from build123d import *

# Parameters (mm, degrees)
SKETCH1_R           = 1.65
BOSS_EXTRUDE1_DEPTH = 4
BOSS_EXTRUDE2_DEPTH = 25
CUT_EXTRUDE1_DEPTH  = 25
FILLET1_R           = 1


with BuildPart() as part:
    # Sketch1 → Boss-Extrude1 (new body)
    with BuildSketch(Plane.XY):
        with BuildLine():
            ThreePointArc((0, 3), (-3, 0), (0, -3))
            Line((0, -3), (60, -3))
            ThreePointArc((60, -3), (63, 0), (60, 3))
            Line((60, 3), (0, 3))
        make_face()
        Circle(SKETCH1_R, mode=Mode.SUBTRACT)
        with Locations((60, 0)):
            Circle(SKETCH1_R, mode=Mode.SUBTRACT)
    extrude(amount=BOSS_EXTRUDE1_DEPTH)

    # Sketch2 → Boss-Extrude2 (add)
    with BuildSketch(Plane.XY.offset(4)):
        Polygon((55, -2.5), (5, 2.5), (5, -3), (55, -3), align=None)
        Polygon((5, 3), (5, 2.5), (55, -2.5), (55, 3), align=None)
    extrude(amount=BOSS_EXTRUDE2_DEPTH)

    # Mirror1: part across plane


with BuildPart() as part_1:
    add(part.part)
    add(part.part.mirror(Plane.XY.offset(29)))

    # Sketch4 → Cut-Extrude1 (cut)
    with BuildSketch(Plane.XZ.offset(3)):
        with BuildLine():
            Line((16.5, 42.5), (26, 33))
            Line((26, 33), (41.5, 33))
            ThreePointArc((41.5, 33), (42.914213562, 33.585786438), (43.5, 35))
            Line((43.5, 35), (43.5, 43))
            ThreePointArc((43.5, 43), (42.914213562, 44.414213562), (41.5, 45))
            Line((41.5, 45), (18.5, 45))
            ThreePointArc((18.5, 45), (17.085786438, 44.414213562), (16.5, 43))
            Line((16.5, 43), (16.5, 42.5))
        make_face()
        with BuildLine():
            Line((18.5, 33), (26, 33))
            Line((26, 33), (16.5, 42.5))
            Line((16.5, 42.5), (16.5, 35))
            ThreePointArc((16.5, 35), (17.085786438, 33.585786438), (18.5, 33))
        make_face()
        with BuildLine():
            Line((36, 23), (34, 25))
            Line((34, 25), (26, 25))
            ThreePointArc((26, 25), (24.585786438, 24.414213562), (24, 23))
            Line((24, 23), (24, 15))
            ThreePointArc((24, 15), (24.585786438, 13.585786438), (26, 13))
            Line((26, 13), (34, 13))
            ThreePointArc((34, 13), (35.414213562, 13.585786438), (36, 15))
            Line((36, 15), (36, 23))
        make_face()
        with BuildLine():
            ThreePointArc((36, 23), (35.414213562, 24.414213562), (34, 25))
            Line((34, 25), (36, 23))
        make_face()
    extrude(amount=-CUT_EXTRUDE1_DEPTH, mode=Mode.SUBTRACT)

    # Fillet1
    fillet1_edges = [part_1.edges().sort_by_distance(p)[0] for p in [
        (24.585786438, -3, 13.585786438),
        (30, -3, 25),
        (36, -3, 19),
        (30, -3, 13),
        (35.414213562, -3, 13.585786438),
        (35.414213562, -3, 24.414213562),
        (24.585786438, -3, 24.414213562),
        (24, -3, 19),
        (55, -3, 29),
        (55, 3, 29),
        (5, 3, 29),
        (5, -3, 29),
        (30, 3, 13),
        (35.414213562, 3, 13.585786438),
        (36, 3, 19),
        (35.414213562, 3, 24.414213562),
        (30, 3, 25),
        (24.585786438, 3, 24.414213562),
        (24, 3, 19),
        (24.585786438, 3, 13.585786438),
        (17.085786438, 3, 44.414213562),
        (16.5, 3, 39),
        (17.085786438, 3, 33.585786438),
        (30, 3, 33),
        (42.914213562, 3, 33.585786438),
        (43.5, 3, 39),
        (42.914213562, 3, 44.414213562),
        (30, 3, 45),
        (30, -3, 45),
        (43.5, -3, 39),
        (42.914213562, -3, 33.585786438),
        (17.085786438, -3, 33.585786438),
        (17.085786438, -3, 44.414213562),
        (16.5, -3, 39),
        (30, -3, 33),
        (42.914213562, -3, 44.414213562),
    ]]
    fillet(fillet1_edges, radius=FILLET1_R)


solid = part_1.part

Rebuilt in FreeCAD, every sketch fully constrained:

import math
import FreeCAD as App
import Part
import Sketcher
Q = App.Units.Quantity


def edges_at(feature, points):
    """Names of the edges that pass closest to the given points."""
    edges = feature.Shape.Edges
    near = lambda p: min(range(len(edges)), key=lambda i: edges[i].distToShape(Part.Vertex(*p))[0])
    return sorted({f"Edge{near(p) + 1}" for p in points})


def add_polygon(sketch, points):
    """Adds a closed chain of lines whose ends are joined by coincident constraints."""
    first, n = sketch.GeometryCount, len(points)
    for a, b in zip(points, points[1:] + points[:1]):
        sketch.addGeometry(Part.LineSegment(App.Vector(*a, 0), App.Vector(*b, 0)), False)
    for i in range(n):
        sketch.addConstraint(Sketcher.Constraint("Coincident", first + i, 2, first + (i + 1) % n, 1))

doc = App.newDocument("Part")
body = doc.addObject("PartDesign::Body", "Body")

sketch1 = body.newObject("Sketcher::SketchObject", "Sketch")
sketch1.AttachmentSupport = (doc.getObject("XY_Plane"), [""])
sketch1.MapMode = "FlatFace"
sketch1.addGeometry([
    Part.ArcOfCircle(Part.Circle(App.Vector(0, 0, 0), App.Vector(0, 0, 1), 3), math.radians(90), math.radians(270)),
    Part.LineSegment(App.Vector(0, -3, 0), App.Vector(60, -3, 0)),
    Part.ArcOfCircle(Part.Circle(App.Vector(60, 0, 0), App.Vector(0, 0, 1), 3), math.radians(-90), math.radians(90)),
    Part.LineSegment(App.Vector(60, 3, 0), App.Vector(0, 3, 0)),
    Part.Circle(App.Vector(0, 0, 0), App.Vector(0, 0, 1), 1.65),
    Part.Circle(App.Vector(60, 0, 0), App.Vector(0, 0, 1), 1.65),
], False)
sketch1.addConstraint([
    Sketcher.Constraint("Tangent", 0, 2, 1, 1),
    Sketcher.Constraint("Tangent", 1, 2, 2, 1),
    Sketcher.Constraint("Tangent", 2, 2, 3, 1),
    Sketcher.Constraint("Tangent", 3, 2, 0, 1),
    Sketcher.Constraint("Horizontal", 1),
    Sketcher.Constraint("Horizontal", 3),
    Sketcher.Constraint("Coincident", 0, 3, -1, 1),
    Sketcher.Constraint("Coincident", 4, 3, -1, 1),
    Sketcher.Constraint("Coincident", 5, 3, 2, 3),
    Sketcher.Constraint("Equal", 4, 5),
    Sketcher.Constraint("Radius", 0, Q("3 mm")),
    Sketcher.Constraint("Diameter", 4, Q("3.3 mm")),
    Sketcher.Constraint("DistanceX", 1, 1, 1, 2, Q("60 mm")),
])
pad1 = body.newObject("PartDesign::Pad", "Pad")
pad1.Profile = sketch1
pad1.Length = 4

sketch2 = body.newObject("Sketcher::SketchObject", "Sketch001")
sketch2.AttachmentSupport = (doc.getObject("XY_Plane"), [""])
sketch2.MapMode = "FlatFace"
sketch2.AttachmentOffset = App.Placement(App.Vector(0, 0, 4), App.Rotation())
add_polygon(sketch2, [(5, -3), (55, -3), (55, 3), (5, 3)])
sketch2.addConstraint([
    Sketcher.Constraint("Horizontal", 0),
    Sketcher.Constraint("Vertical", 1),
    Sketcher.Constraint("Horizontal", 2),
    Sketcher.Constraint("Vertical", 3),
    Sketcher.Constraint("DistanceX", 0, 1, 0, 2, Q("50 mm")),
    Sketcher.Constraint("DistanceY", 1, 1, 1, 2, Q("6 mm")),
    Sketcher.Constraint("DistanceX", -1, 1, 0, 2, Q("55 mm")),
    Sketcher.Constraint("DistanceY", 0, 2, -1, 1, Q("3 mm")),
])
pad2 = body.newObject("PartDesign::Pad", "Pad001")
pad2.Profile = sketch2
pad2.Length = 25
body2 = doc.addObject("PartDesign::Body", "Body001")
doc.recompute()

body2.BaseFeature = body
doc.recompute()

mirroring = doc.addObject("Part::Mirroring", "Mirroring")
mirroring.Source = body
mirroring.Base = App.Vector(0, 0, 29)
mirroring.Normal = App.Vector(0, 0, 1)
body3 = doc.addObject("PartDesign::Body", "Body002")
body3.BaseFeature = mirroring
boolean = body2.newObject("PartDesign::Boolean", "Boolean")
boolean.Type = "Fuse"
boolean.addObjects([body3])
doc.recompute()

sketch3 = body2.newObject("Sketcher::SketchObject", "Sketch002")
sketch3.AttachmentSupport = (doc.getObject("XZ_Plane001"), [""])
sketch3.MapMode = "FlatFace"
sketch3.AttachmentOffset = App.Placement(App.Vector(0, 0, 3), App.Rotation())
sketch3.addGeometry([
    Part.ArcOfCircle(Part.Circle(App.Vector(41.5, 35, 0), App.Vector(0, 0, 1), 2), math.radians(-90), math.radians(0)),
    Part.LineSegment(App.Vector(43.5, 35, 0), App.Vector(43.5, 43, 0)),
    Part.ArcOfCircle(Part.Circle(App.Vector(41.5, 43, 0), App.Vector(0, 0, 1), 2), math.radians(0), math.radians(90)),
    Part.LineSegment(App.Vector(41.5, 45, 0), App.Vector(18.5, 45, 0)),
    Part.ArcOfCircle(Part.Circle(App.Vector(18.5, 43, 0), App.Vector(0, 0, 1), 2), math.radians(90), math.radians(180)),
    Part.LineSegment(App.Vector(16.5, 43, 0), App.Vector(16.5, 35, 0)),
    Part.ArcOfCircle(Part.Circle(App.Vector(18.5, 35, 0), App.Vector(0, 0, 1), 2), math.radians(-180), math.radians(-90)),
    Part.LineSegment(App.Vector(18.5, 33, 0), App.Vector(41.5, 33, 0)),
    Part.LineSegment(App.Vector(34, 25, 0), App.Vector(26, 25, 0)),
    Part.ArcOfCircle(Part.Circle(App.Vector(26, 23, 0), App.Vector(0, 0, 1), 2), math.radians(90), math.radians(180)),
    Part.LineSegment(App.Vector(24, 23, 0), App.Vector(24, 15, 0)),
    Part.ArcOfCircle(Part.Circle(App.Vector(26, 15, 0), App.Vector(0, 0, 1), 2), math.radians(-180), math.radians(-90)),
    Part.LineSegment(App.Vector(26, 13, 0), App.Vector(34, 13, 0)),
    Part.ArcOfCircle(Part.Circle(App.Vector(34, 15, 0), App.Vector(0, 0, 1), 2), math.radians(-90), math.radians(0)),
    Part.LineSegment(App.Vector(36, 15, 0), App.Vector(36, 23, 0)),
    Part.ArcOfCircle(Part.Circle(App.Vector(34, 23, 0), App.Vector(0, 0, 1), 2), math.radians(0), math.radians(90)),
], False)
sketch3.addConstraint([
    Sketcher.Constraint("Tangent", 0, 2, 1, 1),
    Sketcher.Constraint("Tangent", 1, 2, 2, 1),
    Sketcher.Constraint("Tangent", 2, 2, 3, 1),
    Sketcher.Constraint("Tangent", 3, 2, 4, 1),
    Sketcher.Constraint("Tangent", 4, 2, 5, 1),
    Sketcher.Constraint("Tangent", 5, 2, 6, 1),
    Sketcher.Constraint("Tangent", 6, 2, 7, 1),
    Sketcher.Constraint("Tangent", 7, 2, 0, 1),
    Sketcher.Constraint("Tangent", 8, 2, 9, 1),
    Sketcher.Constraint("Tangent", 9, 2, 10, 1),
    Sketcher.Constraint("Tangent", 10, 2, 11, 1),
    Sketcher.Constraint("Tangent", 11, 2, 12, 1),
    Sketcher.Constraint("Tangent", 12, 2, 13, 1),
    Sketcher.Constraint("Tangent", 13, 2, 14, 1),
    Sketcher.Constraint("Tangent", 14, 2, 15, 1),
    Sketcher.Constraint("Tangent", 15, 2, 8, 1),
    Sketcher.Constraint("Vertical", 1),
    Sketcher.Constraint("Horizontal", 3),
    Sketcher.Constraint("Vertical", 5),
    Sketcher.Constraint("Horizontal", 7),
    Sketcher.Constraint("Horizontal", 8),
    Sketcher.Constraint("Vertical", 10),
    Sketcher.Constraint("Horizontal", 12),
    Sketcher.Constraint("Vertical", 14),
    Sketcher.Constraint("Equal", 0, 2),
    Sketcher.Constraint("Equal", 2, 4),
    Sketcher.Constraint("Equal", 4, 6),
    Sketcher.Constraint("Equal", 6, 9),
    Sketcher.Constraint("Equal", 9, 11),
    Sketcher.Constraint("Equal", 11, 13),
    Sketcher.Constraint("Equal", 13, 15),
    Sketcher.Constraint("Equal", 12, 1),
    Sketcher.Constraint("Equal", 5, 10),
    Sketcher.Constraint("Radius", 0, Q("2 mm")),
    Sketcher.Constraint("DistanceX", 3, 2, 3, 1, Q("23 mm")),
    Sketcher.Constraint("DistanceX", 8, 2, 8, 1, Q("8 mm")),
    Sketcher.Constraint("DistanceY", -1, 1, 0, 3, Q("35 mm")),
    Sketcher.Constraint("DistanceX", -1, 1, 9, 3, Q("26 mm")),
    Sketcher.Constraint("DistanceY", -1, 1, 9, 3, Q("23 mm")),
    Sketcher.Constraint("DistanceX", -1, 1, 0, 3, Q("41.5 mm")),
])
pocket1 = body2.newObject("PartDesign::Pocket", "Pocket")
pocket1.Profile = sketch3
pocket1.Length = 25
doc.recompute()

fillet = body2.newObject("PartDesign::Fillet", "Fillet")
fillet.Base = (pocket1, edges_at(pocket1, [
    (24.586, -3, 13.586),
    (30, -3, 25),
    (36, -3, 19),
    (30, -3, 13),
    (35.414, -3, 13.586),
    (35.414, -3, 24.414),
    (24.586, -3, 24.414),
    (24, -3, 19),
    (55, -3, 29),
    (55, 3, 29),
    (5, 3, 29),
    (5, -3, 29),
    (30, 3, 13),
    (35.414, 3, 13.586),
    (36, 3, 19),
    (35.414, 3, 24.414),
    (30, 3, 25),
    (24.586, 3, 24.414),
    (24, 3, 19),
    (24.586, 3, 13.586),
    (17.086, 3, 44.414),
    (16.5, 3, 39),
    (17.086, 3, 33.586),
    (30, 3, 33),
    (42.914, 3, 33.586),
    (43.5, 3, 39),
    (42.914, 3, 44.414),
    (30, 3, 45),
    (30, -3, 45),
    (43.5, -3, 39),
    (42.914, -3, 33.586),
    (17.086, -3, 33.586),
    (17.086, -3, 44.414),
    (16.5, -3, 39),
    (30, -3, 33),
    (42.914, -3, 44.414),
]))
fillet.Radius = 1
mirroring.Visibility = False

doc.recompute()
